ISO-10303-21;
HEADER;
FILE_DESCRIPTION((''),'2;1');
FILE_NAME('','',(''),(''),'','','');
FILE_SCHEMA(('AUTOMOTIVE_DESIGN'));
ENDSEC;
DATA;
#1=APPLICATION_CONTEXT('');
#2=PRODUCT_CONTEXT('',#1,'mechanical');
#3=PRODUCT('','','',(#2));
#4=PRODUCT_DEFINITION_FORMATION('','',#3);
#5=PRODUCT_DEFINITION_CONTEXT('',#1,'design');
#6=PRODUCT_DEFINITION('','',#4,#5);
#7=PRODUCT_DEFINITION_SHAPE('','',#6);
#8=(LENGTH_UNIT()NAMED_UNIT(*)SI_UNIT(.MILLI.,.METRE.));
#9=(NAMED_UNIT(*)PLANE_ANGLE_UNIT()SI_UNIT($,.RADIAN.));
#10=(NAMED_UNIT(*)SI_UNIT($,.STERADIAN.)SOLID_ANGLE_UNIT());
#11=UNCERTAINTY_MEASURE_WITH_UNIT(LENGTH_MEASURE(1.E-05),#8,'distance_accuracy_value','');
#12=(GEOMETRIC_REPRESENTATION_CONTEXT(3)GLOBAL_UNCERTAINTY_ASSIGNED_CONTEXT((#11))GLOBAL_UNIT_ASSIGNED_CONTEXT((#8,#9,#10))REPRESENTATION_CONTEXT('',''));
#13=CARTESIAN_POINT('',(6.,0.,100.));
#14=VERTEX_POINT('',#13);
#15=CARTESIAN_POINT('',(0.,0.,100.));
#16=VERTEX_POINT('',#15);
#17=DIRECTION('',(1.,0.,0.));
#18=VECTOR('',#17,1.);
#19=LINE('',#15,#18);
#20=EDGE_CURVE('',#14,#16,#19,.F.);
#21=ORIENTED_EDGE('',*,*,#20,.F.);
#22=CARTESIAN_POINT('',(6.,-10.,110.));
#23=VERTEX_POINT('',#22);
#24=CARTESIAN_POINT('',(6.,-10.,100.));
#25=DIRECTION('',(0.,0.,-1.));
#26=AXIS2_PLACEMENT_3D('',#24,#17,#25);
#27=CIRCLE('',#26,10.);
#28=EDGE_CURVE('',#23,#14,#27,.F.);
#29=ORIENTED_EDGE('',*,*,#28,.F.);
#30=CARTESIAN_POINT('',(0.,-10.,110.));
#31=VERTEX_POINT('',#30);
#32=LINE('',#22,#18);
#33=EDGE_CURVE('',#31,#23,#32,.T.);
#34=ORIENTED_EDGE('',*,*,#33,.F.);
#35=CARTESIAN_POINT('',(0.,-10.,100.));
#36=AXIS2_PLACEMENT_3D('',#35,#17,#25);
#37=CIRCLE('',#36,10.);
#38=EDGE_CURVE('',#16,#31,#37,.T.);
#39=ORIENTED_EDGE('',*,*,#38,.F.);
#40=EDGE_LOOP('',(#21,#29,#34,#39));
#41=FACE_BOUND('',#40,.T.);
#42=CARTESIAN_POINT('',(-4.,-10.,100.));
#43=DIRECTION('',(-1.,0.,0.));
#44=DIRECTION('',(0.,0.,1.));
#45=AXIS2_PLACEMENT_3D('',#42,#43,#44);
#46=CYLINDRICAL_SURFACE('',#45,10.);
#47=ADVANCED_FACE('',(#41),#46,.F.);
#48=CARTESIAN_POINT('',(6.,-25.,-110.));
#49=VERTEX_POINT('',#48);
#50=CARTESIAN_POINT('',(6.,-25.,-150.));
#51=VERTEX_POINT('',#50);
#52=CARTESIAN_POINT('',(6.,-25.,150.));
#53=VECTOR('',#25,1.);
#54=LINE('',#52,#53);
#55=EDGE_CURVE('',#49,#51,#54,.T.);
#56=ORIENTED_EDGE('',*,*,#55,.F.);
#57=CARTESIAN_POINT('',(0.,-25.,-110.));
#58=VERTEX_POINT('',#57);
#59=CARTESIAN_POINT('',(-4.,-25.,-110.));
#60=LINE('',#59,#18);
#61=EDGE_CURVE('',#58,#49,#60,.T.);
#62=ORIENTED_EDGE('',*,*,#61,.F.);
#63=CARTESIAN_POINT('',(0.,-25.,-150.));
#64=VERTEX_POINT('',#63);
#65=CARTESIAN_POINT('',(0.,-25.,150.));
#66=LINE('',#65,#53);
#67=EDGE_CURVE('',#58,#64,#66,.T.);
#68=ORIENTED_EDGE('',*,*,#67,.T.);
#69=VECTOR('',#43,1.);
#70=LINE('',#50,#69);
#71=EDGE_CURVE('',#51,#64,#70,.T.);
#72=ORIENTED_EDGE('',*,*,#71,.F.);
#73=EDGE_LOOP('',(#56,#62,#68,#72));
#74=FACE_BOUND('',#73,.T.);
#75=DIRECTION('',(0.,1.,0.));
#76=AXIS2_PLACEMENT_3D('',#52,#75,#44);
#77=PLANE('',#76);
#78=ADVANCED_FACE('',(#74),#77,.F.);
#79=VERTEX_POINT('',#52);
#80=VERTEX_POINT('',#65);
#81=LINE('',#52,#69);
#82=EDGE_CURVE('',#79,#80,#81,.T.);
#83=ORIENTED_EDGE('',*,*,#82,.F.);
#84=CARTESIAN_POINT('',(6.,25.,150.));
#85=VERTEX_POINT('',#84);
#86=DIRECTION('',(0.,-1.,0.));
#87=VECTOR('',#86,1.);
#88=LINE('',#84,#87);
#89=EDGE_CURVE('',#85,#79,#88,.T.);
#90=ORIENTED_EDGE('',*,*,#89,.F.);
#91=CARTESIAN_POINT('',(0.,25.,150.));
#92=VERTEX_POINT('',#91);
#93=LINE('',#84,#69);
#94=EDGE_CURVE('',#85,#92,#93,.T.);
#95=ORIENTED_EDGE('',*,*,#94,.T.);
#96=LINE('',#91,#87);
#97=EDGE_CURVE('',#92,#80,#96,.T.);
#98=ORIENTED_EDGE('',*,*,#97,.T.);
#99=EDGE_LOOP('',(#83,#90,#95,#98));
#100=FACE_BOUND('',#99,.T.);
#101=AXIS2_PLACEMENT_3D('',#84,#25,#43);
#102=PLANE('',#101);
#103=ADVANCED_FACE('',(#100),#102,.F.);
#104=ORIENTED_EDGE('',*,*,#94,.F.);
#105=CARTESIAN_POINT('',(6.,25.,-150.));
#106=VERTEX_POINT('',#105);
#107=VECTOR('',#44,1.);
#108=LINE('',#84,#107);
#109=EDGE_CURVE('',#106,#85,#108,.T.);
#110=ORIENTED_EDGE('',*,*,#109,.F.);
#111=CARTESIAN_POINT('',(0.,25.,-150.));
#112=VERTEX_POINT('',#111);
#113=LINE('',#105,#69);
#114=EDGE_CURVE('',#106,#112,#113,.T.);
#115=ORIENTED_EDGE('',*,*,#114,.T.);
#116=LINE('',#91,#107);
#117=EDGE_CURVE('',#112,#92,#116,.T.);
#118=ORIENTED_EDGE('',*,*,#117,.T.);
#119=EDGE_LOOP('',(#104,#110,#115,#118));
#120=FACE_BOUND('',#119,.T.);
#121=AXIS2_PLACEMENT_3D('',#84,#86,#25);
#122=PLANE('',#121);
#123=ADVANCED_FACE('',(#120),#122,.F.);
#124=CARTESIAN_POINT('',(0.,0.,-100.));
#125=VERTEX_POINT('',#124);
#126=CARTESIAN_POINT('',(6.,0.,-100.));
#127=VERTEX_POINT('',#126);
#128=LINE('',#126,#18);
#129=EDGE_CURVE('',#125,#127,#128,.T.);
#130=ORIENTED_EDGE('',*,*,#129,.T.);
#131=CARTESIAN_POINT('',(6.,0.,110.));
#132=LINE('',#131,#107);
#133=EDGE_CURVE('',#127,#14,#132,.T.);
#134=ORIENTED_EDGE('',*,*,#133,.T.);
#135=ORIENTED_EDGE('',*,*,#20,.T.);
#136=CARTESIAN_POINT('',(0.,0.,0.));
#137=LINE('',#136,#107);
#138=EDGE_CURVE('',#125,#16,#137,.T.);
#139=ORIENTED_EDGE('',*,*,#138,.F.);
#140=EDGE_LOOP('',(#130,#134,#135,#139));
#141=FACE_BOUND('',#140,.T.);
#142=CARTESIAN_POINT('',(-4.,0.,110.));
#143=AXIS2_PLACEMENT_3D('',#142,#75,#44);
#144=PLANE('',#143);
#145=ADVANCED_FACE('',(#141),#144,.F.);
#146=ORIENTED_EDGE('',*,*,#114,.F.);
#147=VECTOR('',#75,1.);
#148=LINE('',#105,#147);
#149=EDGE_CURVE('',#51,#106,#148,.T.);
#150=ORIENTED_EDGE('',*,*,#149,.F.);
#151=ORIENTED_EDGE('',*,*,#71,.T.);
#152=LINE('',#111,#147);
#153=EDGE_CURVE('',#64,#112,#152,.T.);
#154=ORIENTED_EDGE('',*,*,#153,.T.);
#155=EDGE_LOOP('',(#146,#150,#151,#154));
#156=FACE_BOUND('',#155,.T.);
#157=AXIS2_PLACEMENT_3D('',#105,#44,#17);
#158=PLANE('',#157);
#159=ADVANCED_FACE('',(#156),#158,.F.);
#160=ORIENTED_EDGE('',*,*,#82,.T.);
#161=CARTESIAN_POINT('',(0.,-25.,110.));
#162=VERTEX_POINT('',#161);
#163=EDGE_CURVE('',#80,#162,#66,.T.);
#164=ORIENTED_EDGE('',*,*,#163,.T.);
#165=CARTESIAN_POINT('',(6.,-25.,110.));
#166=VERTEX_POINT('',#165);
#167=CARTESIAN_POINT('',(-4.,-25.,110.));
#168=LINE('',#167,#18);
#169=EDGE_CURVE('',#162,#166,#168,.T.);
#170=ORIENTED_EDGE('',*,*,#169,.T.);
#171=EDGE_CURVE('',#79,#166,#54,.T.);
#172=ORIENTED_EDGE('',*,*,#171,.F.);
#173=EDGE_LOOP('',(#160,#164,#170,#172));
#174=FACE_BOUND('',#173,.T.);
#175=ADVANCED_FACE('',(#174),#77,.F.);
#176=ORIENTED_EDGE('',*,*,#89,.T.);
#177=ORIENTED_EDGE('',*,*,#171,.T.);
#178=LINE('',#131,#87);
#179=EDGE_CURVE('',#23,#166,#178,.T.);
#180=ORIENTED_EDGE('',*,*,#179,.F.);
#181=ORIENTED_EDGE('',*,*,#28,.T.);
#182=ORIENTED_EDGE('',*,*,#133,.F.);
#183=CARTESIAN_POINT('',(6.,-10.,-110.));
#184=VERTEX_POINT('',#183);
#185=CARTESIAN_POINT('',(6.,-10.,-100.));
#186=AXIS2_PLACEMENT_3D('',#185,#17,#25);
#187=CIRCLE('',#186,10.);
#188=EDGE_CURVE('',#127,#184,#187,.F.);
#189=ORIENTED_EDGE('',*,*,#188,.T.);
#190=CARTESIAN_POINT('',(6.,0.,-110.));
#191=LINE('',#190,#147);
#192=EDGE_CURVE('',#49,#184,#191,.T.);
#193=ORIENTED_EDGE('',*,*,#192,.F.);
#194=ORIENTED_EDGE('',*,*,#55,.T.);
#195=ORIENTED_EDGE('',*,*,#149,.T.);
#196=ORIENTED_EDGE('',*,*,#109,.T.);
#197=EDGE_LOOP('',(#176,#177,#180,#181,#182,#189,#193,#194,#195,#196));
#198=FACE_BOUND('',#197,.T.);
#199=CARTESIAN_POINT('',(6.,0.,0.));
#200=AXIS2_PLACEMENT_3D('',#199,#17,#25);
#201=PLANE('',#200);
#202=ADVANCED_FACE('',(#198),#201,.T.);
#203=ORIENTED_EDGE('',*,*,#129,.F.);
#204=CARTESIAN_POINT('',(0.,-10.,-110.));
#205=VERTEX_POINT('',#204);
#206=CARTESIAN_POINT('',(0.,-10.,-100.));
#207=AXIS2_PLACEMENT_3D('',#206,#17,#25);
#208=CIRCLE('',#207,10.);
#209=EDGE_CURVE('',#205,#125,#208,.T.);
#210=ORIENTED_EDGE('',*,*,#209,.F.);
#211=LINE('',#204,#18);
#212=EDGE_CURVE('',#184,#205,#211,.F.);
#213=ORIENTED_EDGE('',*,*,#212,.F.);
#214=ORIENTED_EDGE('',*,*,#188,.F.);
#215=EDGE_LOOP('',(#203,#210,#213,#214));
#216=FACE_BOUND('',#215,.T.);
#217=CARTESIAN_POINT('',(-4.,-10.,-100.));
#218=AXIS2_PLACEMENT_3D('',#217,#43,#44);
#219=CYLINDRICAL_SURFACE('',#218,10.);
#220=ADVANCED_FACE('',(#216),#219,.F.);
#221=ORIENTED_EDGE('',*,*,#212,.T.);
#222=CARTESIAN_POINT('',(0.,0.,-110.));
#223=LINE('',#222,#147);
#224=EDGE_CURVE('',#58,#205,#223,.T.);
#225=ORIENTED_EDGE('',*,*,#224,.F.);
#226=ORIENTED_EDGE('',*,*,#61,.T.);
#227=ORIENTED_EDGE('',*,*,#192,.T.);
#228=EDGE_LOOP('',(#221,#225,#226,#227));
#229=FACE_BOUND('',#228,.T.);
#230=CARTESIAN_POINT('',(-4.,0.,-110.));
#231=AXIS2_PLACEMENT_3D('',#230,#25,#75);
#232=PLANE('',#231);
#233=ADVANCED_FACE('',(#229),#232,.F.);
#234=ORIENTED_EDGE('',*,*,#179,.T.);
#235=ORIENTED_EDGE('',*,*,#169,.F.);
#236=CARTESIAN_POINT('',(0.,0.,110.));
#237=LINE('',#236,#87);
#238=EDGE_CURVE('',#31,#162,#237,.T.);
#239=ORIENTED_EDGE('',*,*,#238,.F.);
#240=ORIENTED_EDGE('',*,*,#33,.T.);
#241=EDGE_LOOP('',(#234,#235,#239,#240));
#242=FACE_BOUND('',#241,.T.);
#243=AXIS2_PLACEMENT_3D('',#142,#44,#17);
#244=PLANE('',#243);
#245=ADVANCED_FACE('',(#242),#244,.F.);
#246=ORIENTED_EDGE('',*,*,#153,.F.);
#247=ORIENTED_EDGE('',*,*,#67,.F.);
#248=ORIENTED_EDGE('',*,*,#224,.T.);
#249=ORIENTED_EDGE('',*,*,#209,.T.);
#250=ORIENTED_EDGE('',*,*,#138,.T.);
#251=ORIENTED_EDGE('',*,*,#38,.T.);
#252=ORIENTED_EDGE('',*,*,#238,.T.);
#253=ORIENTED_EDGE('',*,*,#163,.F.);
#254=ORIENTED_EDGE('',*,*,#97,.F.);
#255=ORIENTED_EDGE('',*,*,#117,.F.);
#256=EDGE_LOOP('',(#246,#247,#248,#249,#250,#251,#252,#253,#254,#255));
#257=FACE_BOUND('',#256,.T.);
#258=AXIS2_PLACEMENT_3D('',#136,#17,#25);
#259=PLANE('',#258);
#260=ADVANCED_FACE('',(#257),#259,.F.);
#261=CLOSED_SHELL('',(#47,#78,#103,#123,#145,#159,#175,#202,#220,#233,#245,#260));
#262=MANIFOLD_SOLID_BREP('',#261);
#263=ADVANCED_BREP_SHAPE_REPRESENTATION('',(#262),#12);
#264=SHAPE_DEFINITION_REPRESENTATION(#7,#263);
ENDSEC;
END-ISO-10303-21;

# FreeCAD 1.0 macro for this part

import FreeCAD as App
import Part
import Sketcher

V = App.Vector
Q = App.Units.Quantity


def edges_at(feature, points):
    """Names of the edges that pass closest to the given points."""
    edges = feature.Shape.Edges
    near = lambda p: min(range(len(edges)), key=lambda i: edges[i].distToShape(Part.Vertex(*p))[0])
    return sorted({f"Edge{near(p) + 1}" for p in points})

doc = App.newDocument("Part")
body = doc.addObject("PartDesign::Body", "Body")

sketch1 = body.newObject("Sketcher::SketchObject", "Sketch")
sketch1.AttachmentSupport = (doc.getObject("YZ_Plane"), [""])
sketch1.MapMode = "FlatFace"
sketch1.addGeometry(Part.LineSegment(V(25, 150, 0), V(-25, 150, 0)), False)
sketch1.addGeometry(Part.LineSegment(V(-25, 150, 0), V(-25, -150, 0)), False)
sketch1.addGeometry(Part.LineSegment(V(-25, -150, 0), V(25, -150, 0)), False)
sketch1.addGeometry(Part.LineSegment(V(25, -150, 0), V(25, 150, 0)), False)
sketch1.addConstraint(Sketcher.Constraint("Coincident", 0, 2, 1, 1))
sketch1.addConstraint(Sketcher.Constraint("Coincident", 1, 2, 2, 1))
sketch1.addConstraint(Sketcher.Constraint("Coincident", 2, 2, 3, 1))
sketch1.addConstraint(Sketcher.Constraint("Coincident", 3, 2, 0, 1))
sketch1.addConstraint(Sketcher.Constraint("Horizontal", 0))
sketch1.addConstraint(Sketcher.Constraint("Vertical", 1))
sketch1.addConstraint(Sketcher.Constraint("Horizontal", 2))
sketch1.addConstraint(Sketcher.Constraint("Vertical", 3))
sketch1.addConstraint(Sketcher.Constraint("Symmetric", 0, 2, 2, 2, -1, 1))
sketch1.addConstraint(Sketcher.Constraint("DistanceX", 0, 2, 0, 1, Q("50 mm")))
sketch1.addConstraint(Sketcher.Constraint("DistanceY", 1, 2, 1, 1, Q("300 mm")))
pad1 = body.newObject("PartDesign::Pad", "Pad")
pad1.Profile = sketch1
pad1.Length = 6

sketch2 = body.newObject("Sketcher::SketchObject", "Sketch001")
sketch2.AttachmentSupport = (doc.getObject("YZ_Plane"), [""])
sketch2.MapMode = "FlatFace"
sketch2.AttachmentOffset = App.Placement(V(0, 0, 6), App.Rotation())
sketch2.addGeometry(Part.LineSegment(V(0, 110, 0), V(-25, 110, 0)), False)
sketch2.addGeometry(Part.LineSegment(V(-25, 110, 0), V(-25, -110, 0)), False)
sketch2.addGeometry(Part.LineSegment(V(-25, -110, 0), V(0, -110, 0)), False)
sketch2.addGeometry(Part.LineSegment(V(0, -110, 0), V(0, 110, 0)), False)
sketch2.addConstraint(Sketcher.Constraint("Coincident", 0, 2, 1, 1))
sketch2.addConstraint(Sketcher.Constraint("Coincident", 1, 2, 2, 1))
sketch2.addConstraint(Sketcher.Constraint("Coincident", 2, 2, 3, 1))
sketch2.addConstraint(Sketcher.Constraint("Coincident", 3, 2, 0, 1))
sketch2.addConstraint(Sketcher.Constraint("Horizontal", 0))
sketch2.addConstraint(Sketcher.Constraint("Vertical", 1))
sketch2.addConstraint(Sketcher.Constraint("Horizontal", 2))
sketch2.addConstraint(Sketcher.Constraint("Vertical", 3))
sketch2.addConstraint(Sketcher.Constraint("Symmetric", 2, 2, 3, 2, -1, 1))
sketch2.addConstraint(Sketcher.Constraint("DistanceX", 0, 2, 0, 1, Q("25 mm")))
sketch2.addConstraint(Sketcher.Constraint("DistanceY", 1, 2, 1, 1, Q("220 mm")))
pocket1 = body.newObject("PartDesign::Pocket", "Pocket")
pocket1.Profile = sketch2
pocket1.Length = 10
doc.recompute()

fillet = body.newObject("PartDesign::Fillet", "Fillet")
fillet.Base = (pocket1, edges_at(pocket1, [(3, 0, 110), (3, 0, -110)]))
fillet.Radius = 10

doc.recompute()
